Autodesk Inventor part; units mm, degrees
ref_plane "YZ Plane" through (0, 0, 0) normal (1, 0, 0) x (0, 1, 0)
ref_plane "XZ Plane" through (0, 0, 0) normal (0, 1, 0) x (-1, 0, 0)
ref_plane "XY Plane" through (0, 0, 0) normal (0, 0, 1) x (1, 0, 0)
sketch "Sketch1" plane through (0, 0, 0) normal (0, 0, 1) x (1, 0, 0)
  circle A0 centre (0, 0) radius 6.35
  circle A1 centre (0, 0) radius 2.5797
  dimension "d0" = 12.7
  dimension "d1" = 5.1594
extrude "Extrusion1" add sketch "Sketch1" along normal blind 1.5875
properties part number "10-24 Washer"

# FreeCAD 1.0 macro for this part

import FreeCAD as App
import Part
import Sketcher

V = App.Vector
Q = App.Units.Quantity

doc = App.newDocument("Part")
body = doc.addObject("PartDesign::Body", "Body")

# Sketch on XY plane
sketch1 = body.newObject("Sketcher::SketchObject", "Sketch")
sketch1.AttachmentSupport = (doc.getObject("XY_Plane"), [""])
sketch1.MapMode = "FlatFace"
sketch1.addGeometry(Part.Circle(V(0, 0, 0), V(0, 0, 1), 6.35), False)
sketch1.addGeometry(Part.Circle(V(0, 0, 0), V(0, 0, 1), 2.5797), False)
sketch1.addConstraint(Sketcher.Constraint("Coincident", 0, 3, -1, 1))
sketch1.addConstraint(Sketcher.Constraint("Coincident", 1, 3, -1, 1))
sketch1.addConstraint(Sketcher.Constraint("Diameter", 0, Q("0.5 in")))
sketch1.addConstraint(Sketcher.Constraint("Diameter", 1, Q("0.203126 in")))
pad1 = body.newObject("PartDesign::Pad", "Pad")
pad1.Profile = sketch1
pad1.Length = Q("0.0625 in")

doc.recompute()
